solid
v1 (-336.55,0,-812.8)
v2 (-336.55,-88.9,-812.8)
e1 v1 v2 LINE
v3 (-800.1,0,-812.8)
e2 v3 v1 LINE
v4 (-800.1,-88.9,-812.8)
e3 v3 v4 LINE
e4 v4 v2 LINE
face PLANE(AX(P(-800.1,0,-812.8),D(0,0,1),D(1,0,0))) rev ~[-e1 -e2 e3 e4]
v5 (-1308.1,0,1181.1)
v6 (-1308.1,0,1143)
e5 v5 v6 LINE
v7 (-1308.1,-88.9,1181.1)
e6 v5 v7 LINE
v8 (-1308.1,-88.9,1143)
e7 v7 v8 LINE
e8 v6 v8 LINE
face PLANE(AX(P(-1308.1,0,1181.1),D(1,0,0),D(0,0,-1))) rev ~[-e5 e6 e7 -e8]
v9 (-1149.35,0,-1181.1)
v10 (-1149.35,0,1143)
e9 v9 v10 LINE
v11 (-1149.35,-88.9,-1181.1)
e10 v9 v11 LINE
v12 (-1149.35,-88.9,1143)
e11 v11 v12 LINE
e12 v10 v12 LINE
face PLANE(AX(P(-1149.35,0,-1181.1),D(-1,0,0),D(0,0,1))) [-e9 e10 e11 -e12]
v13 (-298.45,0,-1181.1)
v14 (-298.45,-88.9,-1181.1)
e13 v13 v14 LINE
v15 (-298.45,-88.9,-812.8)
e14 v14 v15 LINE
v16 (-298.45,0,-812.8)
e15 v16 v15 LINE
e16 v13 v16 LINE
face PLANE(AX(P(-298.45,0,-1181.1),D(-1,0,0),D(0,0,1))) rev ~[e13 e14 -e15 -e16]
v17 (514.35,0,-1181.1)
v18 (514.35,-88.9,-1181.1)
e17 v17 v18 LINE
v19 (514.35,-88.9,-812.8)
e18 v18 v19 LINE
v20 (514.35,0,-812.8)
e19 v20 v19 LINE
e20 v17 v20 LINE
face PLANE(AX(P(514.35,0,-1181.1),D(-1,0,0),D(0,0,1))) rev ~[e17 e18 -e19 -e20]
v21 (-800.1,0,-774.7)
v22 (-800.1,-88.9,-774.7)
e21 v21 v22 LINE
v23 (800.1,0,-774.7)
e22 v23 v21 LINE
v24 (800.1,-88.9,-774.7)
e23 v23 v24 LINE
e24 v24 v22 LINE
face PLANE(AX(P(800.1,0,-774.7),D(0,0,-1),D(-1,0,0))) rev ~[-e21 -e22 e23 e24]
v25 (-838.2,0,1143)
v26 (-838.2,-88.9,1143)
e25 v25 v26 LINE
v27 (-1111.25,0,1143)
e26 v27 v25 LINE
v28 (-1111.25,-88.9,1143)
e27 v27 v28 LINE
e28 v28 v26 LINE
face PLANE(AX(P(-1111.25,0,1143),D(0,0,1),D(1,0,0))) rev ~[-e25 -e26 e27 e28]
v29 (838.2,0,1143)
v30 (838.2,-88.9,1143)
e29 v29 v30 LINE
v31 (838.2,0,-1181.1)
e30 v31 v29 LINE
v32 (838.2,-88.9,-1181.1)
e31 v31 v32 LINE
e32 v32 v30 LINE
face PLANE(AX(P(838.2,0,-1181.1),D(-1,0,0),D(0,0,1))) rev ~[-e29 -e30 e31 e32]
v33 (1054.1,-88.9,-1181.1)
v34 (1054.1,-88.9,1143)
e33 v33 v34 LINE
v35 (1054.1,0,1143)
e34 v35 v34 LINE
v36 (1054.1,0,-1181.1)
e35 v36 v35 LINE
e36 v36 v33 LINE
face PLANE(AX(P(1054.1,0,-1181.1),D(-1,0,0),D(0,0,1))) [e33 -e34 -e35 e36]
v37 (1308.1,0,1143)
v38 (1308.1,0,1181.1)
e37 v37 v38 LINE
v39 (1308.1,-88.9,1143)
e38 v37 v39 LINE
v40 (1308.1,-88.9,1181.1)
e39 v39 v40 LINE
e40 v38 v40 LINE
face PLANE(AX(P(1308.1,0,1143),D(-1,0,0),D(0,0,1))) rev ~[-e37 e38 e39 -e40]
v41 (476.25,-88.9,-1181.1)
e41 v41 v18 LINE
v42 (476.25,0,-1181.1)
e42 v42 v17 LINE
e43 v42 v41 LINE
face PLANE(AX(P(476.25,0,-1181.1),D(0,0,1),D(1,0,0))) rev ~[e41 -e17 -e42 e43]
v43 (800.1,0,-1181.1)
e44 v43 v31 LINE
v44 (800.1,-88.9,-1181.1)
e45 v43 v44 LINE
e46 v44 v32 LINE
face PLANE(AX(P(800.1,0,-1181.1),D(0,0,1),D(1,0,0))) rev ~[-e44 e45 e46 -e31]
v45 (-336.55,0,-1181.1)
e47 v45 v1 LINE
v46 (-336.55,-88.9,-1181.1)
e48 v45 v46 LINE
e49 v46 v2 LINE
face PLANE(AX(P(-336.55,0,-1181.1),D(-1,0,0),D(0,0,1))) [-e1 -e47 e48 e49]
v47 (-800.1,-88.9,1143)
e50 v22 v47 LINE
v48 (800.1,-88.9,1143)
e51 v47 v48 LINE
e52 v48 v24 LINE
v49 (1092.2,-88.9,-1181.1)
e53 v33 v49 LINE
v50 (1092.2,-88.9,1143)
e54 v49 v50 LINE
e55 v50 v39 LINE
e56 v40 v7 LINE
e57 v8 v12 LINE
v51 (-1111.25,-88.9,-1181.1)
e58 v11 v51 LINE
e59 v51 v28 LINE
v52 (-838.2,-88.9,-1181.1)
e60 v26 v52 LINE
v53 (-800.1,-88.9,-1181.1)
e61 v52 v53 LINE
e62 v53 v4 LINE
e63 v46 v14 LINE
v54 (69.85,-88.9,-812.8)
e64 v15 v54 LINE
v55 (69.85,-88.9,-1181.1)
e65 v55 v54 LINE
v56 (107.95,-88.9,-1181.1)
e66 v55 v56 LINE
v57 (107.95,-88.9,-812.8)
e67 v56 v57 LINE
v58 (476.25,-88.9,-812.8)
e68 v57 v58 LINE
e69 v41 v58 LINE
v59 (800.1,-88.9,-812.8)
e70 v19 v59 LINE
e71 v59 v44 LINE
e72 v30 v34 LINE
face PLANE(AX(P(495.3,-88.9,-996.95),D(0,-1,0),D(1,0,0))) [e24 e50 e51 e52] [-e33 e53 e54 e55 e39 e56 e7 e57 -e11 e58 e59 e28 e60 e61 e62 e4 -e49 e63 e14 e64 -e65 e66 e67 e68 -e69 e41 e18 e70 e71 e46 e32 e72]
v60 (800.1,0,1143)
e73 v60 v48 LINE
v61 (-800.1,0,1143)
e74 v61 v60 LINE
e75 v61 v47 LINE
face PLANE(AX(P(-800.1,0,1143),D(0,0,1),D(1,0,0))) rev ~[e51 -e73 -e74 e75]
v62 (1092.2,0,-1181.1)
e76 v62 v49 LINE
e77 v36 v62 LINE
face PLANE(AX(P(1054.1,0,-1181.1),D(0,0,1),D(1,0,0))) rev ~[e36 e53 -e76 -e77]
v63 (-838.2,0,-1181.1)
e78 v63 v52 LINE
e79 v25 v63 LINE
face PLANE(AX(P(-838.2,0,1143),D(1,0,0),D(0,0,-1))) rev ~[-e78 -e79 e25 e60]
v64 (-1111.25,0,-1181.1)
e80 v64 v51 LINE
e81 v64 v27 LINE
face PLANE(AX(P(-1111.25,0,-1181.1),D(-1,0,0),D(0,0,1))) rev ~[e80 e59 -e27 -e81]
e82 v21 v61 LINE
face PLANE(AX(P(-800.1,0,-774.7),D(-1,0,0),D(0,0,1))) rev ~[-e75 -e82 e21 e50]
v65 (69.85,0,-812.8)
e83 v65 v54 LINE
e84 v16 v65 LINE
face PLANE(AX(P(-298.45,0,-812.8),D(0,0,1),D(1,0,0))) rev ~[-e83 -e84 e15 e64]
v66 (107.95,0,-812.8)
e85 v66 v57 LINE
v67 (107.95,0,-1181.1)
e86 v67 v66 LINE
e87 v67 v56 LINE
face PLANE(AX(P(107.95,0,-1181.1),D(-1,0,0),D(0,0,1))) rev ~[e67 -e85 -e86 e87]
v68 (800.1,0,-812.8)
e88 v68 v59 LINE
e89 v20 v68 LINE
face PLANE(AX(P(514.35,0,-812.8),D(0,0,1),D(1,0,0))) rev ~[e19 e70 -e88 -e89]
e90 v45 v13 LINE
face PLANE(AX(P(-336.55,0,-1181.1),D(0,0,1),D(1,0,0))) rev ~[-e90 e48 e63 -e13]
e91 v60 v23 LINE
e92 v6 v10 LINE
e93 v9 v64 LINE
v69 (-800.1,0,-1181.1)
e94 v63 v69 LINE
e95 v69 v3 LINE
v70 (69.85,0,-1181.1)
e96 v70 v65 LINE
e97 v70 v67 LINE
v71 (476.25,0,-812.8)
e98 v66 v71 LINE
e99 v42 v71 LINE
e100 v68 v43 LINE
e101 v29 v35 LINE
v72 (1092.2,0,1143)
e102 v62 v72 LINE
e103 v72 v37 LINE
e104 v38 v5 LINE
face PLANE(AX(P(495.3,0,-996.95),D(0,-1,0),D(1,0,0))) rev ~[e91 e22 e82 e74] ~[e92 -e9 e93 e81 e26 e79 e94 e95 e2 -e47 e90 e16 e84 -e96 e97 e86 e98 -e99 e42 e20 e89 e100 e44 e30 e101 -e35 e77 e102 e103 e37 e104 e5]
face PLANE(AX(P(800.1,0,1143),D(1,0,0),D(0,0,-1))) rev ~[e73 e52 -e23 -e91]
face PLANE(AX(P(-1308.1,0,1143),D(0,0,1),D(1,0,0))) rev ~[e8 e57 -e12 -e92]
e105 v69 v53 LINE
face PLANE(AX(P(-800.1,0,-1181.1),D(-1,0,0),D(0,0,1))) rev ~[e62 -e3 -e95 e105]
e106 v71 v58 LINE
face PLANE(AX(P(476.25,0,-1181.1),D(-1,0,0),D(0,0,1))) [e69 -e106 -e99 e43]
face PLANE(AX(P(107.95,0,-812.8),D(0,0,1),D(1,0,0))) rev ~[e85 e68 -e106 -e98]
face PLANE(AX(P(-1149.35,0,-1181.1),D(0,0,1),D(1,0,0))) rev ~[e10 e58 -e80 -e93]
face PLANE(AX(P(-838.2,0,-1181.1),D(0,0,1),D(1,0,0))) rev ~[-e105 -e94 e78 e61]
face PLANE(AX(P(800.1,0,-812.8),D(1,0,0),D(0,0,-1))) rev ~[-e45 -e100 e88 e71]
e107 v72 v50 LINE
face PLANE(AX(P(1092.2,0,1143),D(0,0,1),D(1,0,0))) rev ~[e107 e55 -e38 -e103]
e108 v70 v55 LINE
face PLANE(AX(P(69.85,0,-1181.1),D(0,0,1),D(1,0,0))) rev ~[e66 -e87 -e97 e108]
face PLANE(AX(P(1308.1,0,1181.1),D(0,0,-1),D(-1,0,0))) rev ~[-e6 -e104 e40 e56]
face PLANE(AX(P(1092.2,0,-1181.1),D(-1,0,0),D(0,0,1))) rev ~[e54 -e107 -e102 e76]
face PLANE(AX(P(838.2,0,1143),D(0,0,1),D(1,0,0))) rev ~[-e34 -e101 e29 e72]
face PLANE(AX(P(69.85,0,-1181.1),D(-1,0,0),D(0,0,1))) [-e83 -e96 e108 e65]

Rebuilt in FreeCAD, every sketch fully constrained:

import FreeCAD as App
import Part
import Sketcher
from FreeCAD import Vector
Q = App.Units.Quantity


def add_polygon(sketch, points):
    """Adds a closed chain of lines whose ends are joined by coincident constraints."""
    first, n = sketch.GeometryCount, len(points)
    for a, b in zip(points, points[1:] + points[:1]):
        sketch.addGeometry(Part.LineSegment(App.Vector(*a, 0), App.Vector(*b, 0)), False)
    for i in range(n):
        sketch.addConstraint(Sketcher.Constraint("Coincident", first + i, 2, first + (i + 1) % n, 1))

doc = App.newDocument("Part")
body = doc.addObject("PartDesign::Body", "Body")

# Sketch on XZ plane
sketch1 = body.newObject("Sketcher::SketchObject", "Sketch")
sketch1.AttachmentSupport = (doc.getObject("XZ_Plane"), [""])
sketch1.MapMode = "FlatFace"
add_polygon(sketch1, [(476.25, -812.8), (476.25, -1181.1), (514.35, -1181.1), (514.35, -812.8), (800.1, -812.8), (800.1, -1181.1), (838.2, -1181.1), (838.2, 1143), (1054.1, 1143), (1054.1, -1181.1), (1092.2, -1181.1), (1092.2, 1143), (1308.1, 1143), (1308.1, 1181.1), (-1308.1, 1181.1), (-1308.1, 1143), (-1149.35, 1143), (-1149.35, -1181.1), (-1111.25, -1181.1), (-1111.25, 1143), (-838.2, 1143), (-838.2, -1181.1), (-800.1, -1181.1), (-800.1, -812.8), (-336.55, -812.8), (-336.55, -1181.1), (-298.45, -1181.1), (-298.45, -812.8), (69.85, -812.8), (69.85, -1181.1), (107.95, -1181.1), (107.95, -812.8)])  # lines 0-31
add_polygon(sketch1, [(800.1, -774.7), (-800.1, -774.7), (-800.1, 1143), (800.1, 1143)])  # lines 32-35
sketch1.addConstraint([
    Sketcher.Constraint("Vertical", 0),
    Sketcher.Constraint("Horizontal", 1),
    Sketcher.Constraint("Vertical", 2),
    Sketcher.Constraint("Horizontal", 3),
    Sketcher.Constraint("Vertical", 4),
    Sketcher.Constraint("Horizontal", 5),
    Sketcher.Constraint("Vertical", 6),
    Sketcher.Constraint("Horizontal", 7),
    Sketcher.Constraint("Vertical", 8),
    Sketcher.Constraint("Horizontal", 9),
    Sketcher.Constraint("Vertical", 10),
    Sketcher.Constraint("Horizontal", 11),
    Sketcher.Constraint("Vertical", 12),
    Sketcher.Constraint("Horizontal", 13),
    Sketcher.Constraint("Vertical", 14),
    Sketcher.Constraint("Horizontal", 15),
    Sketcher.Constraint("Vertical", 16),
    Sketcher.Constraint("Horizontal", 17),
    Sketcher.Constraint("Vertical", 18),
    Sketcher.Constraint("Horizontal", 19),
    Sketcher.Constraint("Vertical", 20),
    Sketcher.Constraint("Horizontal", 21),
    Sketcher.Constraint("Vertical", 22),
    Sketcher.Constraint("Horizontal", 23),
    Sketcher.Constraint("Vertical", 24),
    Sketcher.Constraint("Horizontal", 25),
    Sketcher.Constraint("Vertical", 26),
    Sketcher.Constraint("Horizontal", 27),
    Sketcher.Constraint("Vertical", 28),
    Sketcher.Constraint("Horizontal", 29),
    Sketcher.Constraint("Vertical", 30),
    Sketcher.Constraint("Horizontal", 31),
    Sketcher.Constraint("Horizontal", 32),
    Sketcher.Constraint("Vertical", 33),
    Sketcher.Constraint("Horizontal", 34),
    Sketcher.Constraint("Vertical", 35),
    Sketcher.Constraint("Symmetric", 11, 2, 14, 2, -2),
    Sketcher.Constraint("Symmetric", 6, 2, 19, 2, -2),
    Sketcher.Constraint("Symmetric", 4, 2, 21, 2, -2),
    Sketcher.Constraint("Horizontal", 1, 2, 4, 2),
    Sketcher.Constraint("Horizontal", 5, 2, 8, 2),
    Sketcher.Constraint("Horizontal", 7, 2, 10, 2),
    Sketcher.Constraint("Horizontal", 9, 2, 16, 2),
    Sketcher.Constraint("Horizontal", 3, 2, 22, 2),
    Sketcher.Constraint("Horizontal", 21, 2, 24, 2),
    Sketcher.Constraint("Horizontal", 23, 2, 26, 2),
    Sketcher.Constraint("Horizontal", 25, 2, 28, 2),
    Sketcher.Constraint("Horizontal", 27, 2, 30, 2),
    Sketcher.Constraint("Horizontal", 19, 2, 33, 2),
    Sketcher.Constraint("Vertical", 22, 2, 32, 2),
    Sketcher.Constraint("Vertical", 4, 2, 34, 2),
    Sketcher.Constraint("Equal", 1, 5),
    Sketcher.Constraint("Equal", 5, 9),
    Sketcher.Constraint("Equal", 7, 11),
    Sketcher.Constraint("Equal", 9, 17),
    Sketcher.Constraint("Equal", 21, 25),
    Sketcher.Constraint("Equal", 25, 29),
    Sketcher.Constraint("Equal", 27, 31),
    Sketcher.Constraint("Equal", 31, 0),
    Sketcher.Constraint("Equal", 29, 12),
    Sketcher.Constraint("DistanceX", 13, 2, 13, 1, Q("103 in")),
    Sketcher.Constraint("DistanceX", 32, 2, 32, 1, Q("63 in")),
    Sketcher.Constraint("DistanceX", 1, 1, 1, 2, Q("1.5 in")),
    Sketcher.Constraint("DistanceX", 27, 1, 27, 2, Q("14.5 in")),
    Sketcher.Constraint("DistanceY", 6, 1, 6, 2, Q("91.5 in")),
    Sketcher.Constraint("DistanceY", 33, 1, 33, 2, Q("75.5 in")),
    Sketcher.Constraint("DistanceY", 2, 2, -1, 1, Q("32 in")),
    Sketcher.Constraint("DistanceX", 16, 2, 0, 2, Q("64 in")),
    Sketcher.Constraint("DistanceX", 3, 1, 3, 2, Q("11.25 in")),
])
pad1 = body.newObject("PartDesign::Pad", "Pad")
pad1.Profile = sketch1
pad1.Length = Q("3.5 in")

doc.recompute()
